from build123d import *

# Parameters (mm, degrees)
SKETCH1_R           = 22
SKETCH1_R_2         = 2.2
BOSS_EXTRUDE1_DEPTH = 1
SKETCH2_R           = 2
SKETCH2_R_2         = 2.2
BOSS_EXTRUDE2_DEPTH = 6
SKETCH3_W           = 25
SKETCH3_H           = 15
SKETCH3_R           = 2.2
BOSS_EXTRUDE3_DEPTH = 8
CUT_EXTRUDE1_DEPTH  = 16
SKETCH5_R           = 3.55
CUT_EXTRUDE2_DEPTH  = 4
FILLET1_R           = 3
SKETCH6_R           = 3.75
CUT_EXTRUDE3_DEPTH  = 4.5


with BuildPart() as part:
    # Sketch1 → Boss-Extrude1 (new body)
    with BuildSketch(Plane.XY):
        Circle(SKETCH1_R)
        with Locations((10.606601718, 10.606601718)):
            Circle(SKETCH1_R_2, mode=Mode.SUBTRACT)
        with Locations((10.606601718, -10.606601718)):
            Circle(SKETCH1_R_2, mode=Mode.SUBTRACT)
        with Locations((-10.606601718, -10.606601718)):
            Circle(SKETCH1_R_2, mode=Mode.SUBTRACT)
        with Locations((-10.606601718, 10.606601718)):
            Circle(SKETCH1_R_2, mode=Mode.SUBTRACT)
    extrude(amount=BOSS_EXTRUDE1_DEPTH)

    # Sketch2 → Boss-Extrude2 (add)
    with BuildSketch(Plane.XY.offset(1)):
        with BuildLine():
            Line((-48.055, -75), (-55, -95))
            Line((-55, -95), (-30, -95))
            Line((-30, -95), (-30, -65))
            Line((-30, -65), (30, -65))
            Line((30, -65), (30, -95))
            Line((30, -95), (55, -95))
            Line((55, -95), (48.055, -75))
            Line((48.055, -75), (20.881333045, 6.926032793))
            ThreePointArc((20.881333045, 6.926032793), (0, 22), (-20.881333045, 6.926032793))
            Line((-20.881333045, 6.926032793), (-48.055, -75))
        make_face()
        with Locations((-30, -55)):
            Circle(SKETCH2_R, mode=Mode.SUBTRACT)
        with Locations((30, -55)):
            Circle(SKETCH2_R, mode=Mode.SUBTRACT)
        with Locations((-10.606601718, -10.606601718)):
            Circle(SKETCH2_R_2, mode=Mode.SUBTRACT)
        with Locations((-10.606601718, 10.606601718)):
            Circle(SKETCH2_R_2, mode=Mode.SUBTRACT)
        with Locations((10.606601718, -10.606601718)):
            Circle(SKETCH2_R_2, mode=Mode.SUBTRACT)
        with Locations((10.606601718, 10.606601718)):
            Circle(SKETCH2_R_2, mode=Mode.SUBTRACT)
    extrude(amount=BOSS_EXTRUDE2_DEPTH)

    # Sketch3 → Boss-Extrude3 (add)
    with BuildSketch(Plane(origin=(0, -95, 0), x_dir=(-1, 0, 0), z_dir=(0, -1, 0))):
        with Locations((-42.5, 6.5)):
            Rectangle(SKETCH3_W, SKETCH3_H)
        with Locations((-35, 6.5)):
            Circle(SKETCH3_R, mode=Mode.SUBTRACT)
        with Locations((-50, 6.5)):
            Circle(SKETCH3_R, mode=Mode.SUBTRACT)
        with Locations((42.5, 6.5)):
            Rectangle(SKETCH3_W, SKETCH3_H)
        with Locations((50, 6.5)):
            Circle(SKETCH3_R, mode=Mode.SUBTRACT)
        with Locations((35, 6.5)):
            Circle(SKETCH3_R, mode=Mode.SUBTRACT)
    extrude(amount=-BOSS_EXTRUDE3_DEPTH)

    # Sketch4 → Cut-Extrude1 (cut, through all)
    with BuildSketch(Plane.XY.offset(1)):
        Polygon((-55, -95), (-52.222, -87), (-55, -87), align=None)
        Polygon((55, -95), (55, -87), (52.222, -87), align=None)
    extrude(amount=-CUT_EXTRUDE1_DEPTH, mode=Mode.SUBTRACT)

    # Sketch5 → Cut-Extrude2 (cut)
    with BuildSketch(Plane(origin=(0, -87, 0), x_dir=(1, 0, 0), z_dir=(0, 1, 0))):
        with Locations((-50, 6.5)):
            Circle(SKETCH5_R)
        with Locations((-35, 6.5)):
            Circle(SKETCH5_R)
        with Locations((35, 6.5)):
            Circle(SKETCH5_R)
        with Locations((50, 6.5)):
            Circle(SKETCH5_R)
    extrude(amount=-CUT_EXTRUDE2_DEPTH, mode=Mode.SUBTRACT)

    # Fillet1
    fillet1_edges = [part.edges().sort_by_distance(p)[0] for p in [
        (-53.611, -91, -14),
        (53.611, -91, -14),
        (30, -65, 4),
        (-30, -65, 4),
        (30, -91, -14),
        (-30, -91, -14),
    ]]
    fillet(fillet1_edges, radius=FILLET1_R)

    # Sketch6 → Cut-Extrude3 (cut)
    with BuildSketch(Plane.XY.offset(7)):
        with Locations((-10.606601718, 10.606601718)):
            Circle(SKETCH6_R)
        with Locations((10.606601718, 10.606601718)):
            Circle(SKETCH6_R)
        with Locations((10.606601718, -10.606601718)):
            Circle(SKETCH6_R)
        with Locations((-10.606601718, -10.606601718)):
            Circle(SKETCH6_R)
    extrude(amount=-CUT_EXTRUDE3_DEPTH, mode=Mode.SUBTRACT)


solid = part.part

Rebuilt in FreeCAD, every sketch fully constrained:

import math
import FreeCAD as App
import Part
import Sketcher
from FreeCAD import Vector
Q = App.Units.Quantity


def edges_at(feature, points):
    """Names of the edges that pass closest to the given points."""
    edges = feature.Shape.Edges
    near = lambda p: min(range(len(edges)), key=lambda i: edges[i].distToShape(Part.Vertex(*p))[0])
    return sorted({f"Edge{near(p) + 1}" for p in points})

doc = App.newDocument("Part")
params = doc.addObject("Spreadsheet::Sheet", "Params")
for row, (alias, value) in enumerate([
    ("sketch1_diameter", "44 mm"),
    ("sketch1_diameter2", "4.4 mm"),
    ("pad1_length", "1 mm"),
    ("sketch2_diameter", "4 mm"),
    ("sketch2_radius", "22 mm"),
    ("sketch2_diameter2", "4.4 mm"),
    ("sketch2_width", "25 mm"),
    ("sketch2_width2", "60 mm"),
    ("pad2_length", "6 mm"),
    ("sketch3_diameter", "4.4 mm"),
    ("sketch3_width", "25 mm"),
    ("sketch3_height", "15 mm"),
    ("pad3_length", "8 mm"),
    ("sketch4_height", "8 mm"),
    ("sketch5_diameter", "7.1 mm"),
    ("pocket2_length", "4 mm"),
    ("fillet_radius", "3 mm"),
    ("sketch6_diameter", "7.5 mm"),
    ("pocket3_length", "4.5 mm"),
], start=1):
    params.set(f"A{row}", alias)
    params.set(f"B{row}", "=" + value)
    params.setAlias(f"B{row}", alias)

body = doc.addObject("PartDesign::Body", "Body")

# Sketch on XY plane
sketch1 = body.newObject("Sketcher::SketchObject", "Sketch")
sketch1.AttachmentSupport = (doc.getObject("XY_Plane"), [""])
sketch1.MapMode = "FlatFace"
sketch1.addGeometry(Part.Circle(Vector(0, 0, 0), Vector(0, 0, 1), 22), False)
sketch1.addGeometry(Part.Circle(Vector(-10.6, -10.6, 0), Vector(0, 0, 1), 2.2), False)
sketch1.addGeometry(Part.Circle(Vector(10.6, -10.6, 0), Vector(0, 0, 1), 2.2), False)
sketch1.addGeometry(Part.Circle(Vector(-10.6, 10.6, 0), Vector(0, 0, 1), 2.2), False)
sketch1.addGeometry(Part.Circle(Vector(10.6, 10.6, 0), Vector(0, 0, 1), 2.2), False)
sketch1.addConstraint(Sketcher.Constraint("Coincident", 0, 3, -1, 1))
sketch1.addConstraint(Sketcher.Constraint("Equal", 1, 2))
sketch1.addConstraint(Sketcher.Constraint("Equal", 2, 3))
sketch1.addConstraint(Sketcher.Constraint("Equal", 3, 4))
sketch1.addConstraint(Sketcher.Constraint("Symmetric", 2, 3, 3, 3, -1, 1))
sketch1.addConstraint(Sketcher.Constraint("Symmetric", 1, 3, 4, 3, -1, 1))
sketch1.addConstraint(Sketcher.Constraint("Symmetric", 1, 3, 2, 3, -2))
sketch1.addConstraint(Sketcher.Constraint("Diameter", 0, Q("44 mm")))
sketch1.addConstraint(Sketcher.Constraint("Diameter", 1, Q("4.4 mm")))
sketch1.addConstraint(Sketcher.Constraint("DistanceX", 1, 3, -1, 1, Q("10.606602 mm")))
sketch1.addConstraint(Sketcher.Constraint("DistanceY", 1, 3, -1, 1, Q("10.606602 mm")))
sketch1.setExpression("Constraints[7]", "Params.sketch1_diameter")
sketch1.setExpression("Constraints[8]", "Params.sketch1_diameter2")
pad1 = body.newObject("PartDesign::Pad", "Pad")
pad1.Profile = sketch1
pad1.setExpression("Length", "Params.pad1_length")

# Sketch on XY plane
sketch2 = body.newObject("Sketcher::SketchObject", "Sketch001")
sketch2.AttachmentSupport = (doc.getObject("XY_Plane"), [""])
sketch2.MapMode = "FlatFace"
sketch2.AttachmentOffset = App.Placement(Vector(0, 0, 1), App.Rotation())
sketch2.addGeometry(Part.LineSegment(Vector(-48.1, -75, 0), Vector(-55, -95, 0)), False)
sketch2.addGeometry(Part.LineSegment(Vector(-55, -95, 0), Vector(-30, -95, 0)), False)
sketch2.addGeometry(Part.LineSegment(Vector(-30, -95, 0), Vector(-30, -65, 0)), False)
sketch2.addGeometry(Part.LineSegment(Vector(-30, -65, 0), Vector(30, -65, 0)), False)
sketch2.addGeometry(Part.LineSegment(Vector(30, -65, 0), Vector(30, -95, 0)), False)
sketch2.addGeometry(Part.LineSegment(Vector(30, -95, 0), Vector(55, -95, 0)), False)
sketch2.addGeometry(Part.LineSegment(Vector(55, -95, 0), Vector(48.1, -75, 0)), False)
sketch2.addGeometry(Part.LineSegment(Vector(48.1, -75, 0), Vector(20.9, 6.9, 0)), False)
sketch2.addGeometry(Part.ArcOfCircle(Part.Circle(Vector(0, 0, 0), Vector(0, 0, 1), 22), math.radians(18), math.radians(162)), False)
sketch2.addGeometry(Part.LineSegment(Vector(-20.9, 6.9, 0), Vector(-48.1, -75, 0)), False)
sketch2.addGeometry(Part.Circle(Vector(-30, -55, 0), Vector(0, 0, 1), 2), False)
sketch2.addGeometry(Part.Circle(Vector(30, -55, 0), Vector(0, 0, 1), 2), False)
sketch2.addGeometry(Part.Circle(Vector(-10.6, -10.6, 0), Vector(0, 0, 1), 2.2), False)
sketch2.addGeometry(Part.Circle(Vector(-10.6, 10.6, 0), Vector(0, 0, 1), 2.2), False)
sketch2.addGeometry(Part.Circle(Vector(10.6, -10.6, 0), Vector(0, 0, 1), 2.2), False)
sketch2.addGeometry(Part.Circle(Vector(10.6, 10.6, 0), Vector(0, 0, 1), 2.2), False)
sketch2.addConstraint(Sketcher.Constraint("Coincident", 0, 2, 1, 1))
sketch2.addConstraint(Sketcher.Constraint("Coincident", 1, 2, 2, 1))
sketch2.addConstraint(Sketcher.Constraint("Coincident", 2, 2, 3, 1))
sketch2.addConstraint(Sketcher.Constraint("Coincident", 3, 2, 4, 1))
sketch2.addConstraint(Sketcher.Constraint("Coincident", 4, 2, 5, 1))
sketch2.addConstraint(Sketcher.Constraint("Coincident", 5, 2, 6, 1))
sketch2.addConstraint(Sketcher.Constraint("Coincident", 6, 2, 7, 1))
sketch2.addConstraint(Sketcher.Constraint("Tangent", 7, 2, 8, 1))
sketch2.addConstraint(Sketcher.Constraint("Tangent", 8, 2, 9, 1))
sketch2.addConstraint(Sketcher.Constraint("Coincident", 9, 2, 0, 1))
sketch2.addConstraint(Sketcher.Constraint("Horizontal", 1))
sketch2.addConstraint(Sketcher.Constraint("Vertical", 2))
sketch2.addConstraint(Sketcher.Constraint("Horizontal", 3))
sketch2.addConstraint(Sketcher.Constraint("Vertical", 4))
sketch2.addConstraint(Sketcher.Constraint("Horizontal", 5))
sketch2.addConstraint(Sketcher.Constraint("Coincident", 8, 3, -1, 1))
sketch2.addConstraint(Sketcher.Constraint("Equal", 10, 11))
sketch2.addConstraint(Sketcher.Constraint("Equal", 12, 13))
sketch2.addConstraint(Sketcher.Constraint("Equal", 13, 14))
sketch2.addConstraint(Sketcher.Constraint("Equal", 14, 15))
sketch2.addConstraint(Sketcher.Constraint("Symmetric", 13, 3, 14, 3, -1, 1))
sketch2.addConstraint(Sketcher.Constraint("Symmetric", 12, 3, 15, 3, -1, 1))
sketch2.addConstraint(Sketcher.Constraint("Symmetric", 10, 3, 11, 3, -2))
sketch2.addConstraint(Sketcher.Constraint("Symmetric", 12, 3, 14, 3, -2))
sketch2.addConstraint(Sketcher.Constraint("Symmetric", 1, 2, 4, 2, -2))
sketch2.addConstraint(Sketcher.Constraint("Symmetric", 6, 2, 9, 2, -2))
sketch2.addConstraint(Sketcher.Constraint("Vertical", 10, 3, 1, 2))
sketch2.addConstraint(Sketcher.Constraint("Equal", 1, 5))
sketch2.addConstraint(Sketcher.Constraint("Diameter", 10, Q("4 mm")))
sketch2.addConstraint(Sketcher.Constraint("Radius", 8, Q("22 mm")))
sketch2.addConstraint(Sketcher.Constraint("Diameter", 12, Q("4.4 mm")))
sketch2.addConstraint(Sketcher.Constraint("DistanceX", 1, 1, 1, 2, Q("25 mm")))
sketch2.addConstraint(Sketcher.Constraint("DistanceX", 3, 1, 3, 2, Q("60 mm")))
sketch2.addConstraint(Sketcher.Constraint("DistanceY", 2, 1, 2, 2, Q("30 mm")))
sketch2.addConstraint(Sketcher.Constraint("DistanceY", 10, 3, -1, 1, Q("55 mm")))
sketch2.addConstraint(Sketcher.Constraint("DistanceY", 0, 2, -1, 1, Q("95 mm")))
sketch2.addConstraint(Sketcher.Constraint("DistanceY", 6, 2, -1, 1, Q("75 mm")))
sketch2.addConstraint(Sketcher.Constraint("DistanceX", -1, 1, 6, 2, Q("48.055 mm")))
sketch2.addConstraint(Sketcher.Constraint("DistanceX", 12, 3, -1, 1, Q("10.606602 mm")))
sketch2.addConstraint(Sketcher.Constraint("DistanceY", 12, 3, -1, 1, Q("10.606602 mm")))
sketch2.setExpression("Constraints[28]", "Params.sketch2_diameter")
sketch2.setExpression("Constraints[29]", "Params.sketch2_radius")
sketch2.setExpression("Constraints[30]", "Params.sketch2_diameter2")
sketch2.setExpression("Constraints[31]", "Params.sketch2_width")
sketch2.setExpression("Constraints[32]", "Params.sketch2_width2")
pad2 = body.newObject("PartDesign::Pad", "Pad001")
pad2.Profile = sketch2
pad2.setExpression("Length", "Params.pad2_length")

# Sketch on XZ plane
sketch3 = body.newObject("Sketcher::SketchObject", "Sketch002")
sketch3.AttachmentSupport = (doc.getObject("XZ_Plane"), [""])
sketch3.MapMode = "FlatFace"
sketch3.AttachmentOffset = App.Placement(Vector(0, 0, 95), App.Rotation())
sketch3.addGeometry(Part.LineSegment(Vector(55, -14, 0), Vector(55, 1, 0)), False)
sketch3.addGeometry(Part.LineSegment(Vector(55, 1, 0), Vector(30, 1, 0)), False)
sketch3.addGeometry(Part.LineSegment(Vector(30, 1, 0), Vector(30, -14, 0)), False)
sketch3.addGeometry(Part.LineSegment(Vector(30, -14, 0), Vector(55, -14, 0)), False)
sketch3.addGeometry(Part.Circle(Vector(50, -6.5, 0), Vector(0, 0, 1), 2.2), False)
sketch3.addGeometry(Part.Circle(Vector(35, -6.5, 0), Vector(0, 0, 1), 2.2), False)
sketch3.addGeometry(Part.LineSegment(Vector(-30, -14, 0), Vector(-30, 1, 0)), False)
sketch3.addGeometry(Part.LineSegment(Vector(-30, 1, 0), Vector(-55, 1, 0)), False)
sketch3.addGeometry(Part.LineSegment(Vector(-55, 1, 0), Vector(-55, -14, 0)), False)
sketch3.addGeometry(Part.LineSegment(Vector(-55, -14, 0), Vector(-30, -14, 0)), False)
sketch3.addGeometry(Part.Circle(Vector(-35, -6.5, 0), Vector(0, 0, 1), 2.2), False)
sketch3.addGeometry(Part.Circle(Vector(-50, -6.5, 0), Vector(0, 0, 1), 2.2), False)
sketch3.addConstraint(Sketcher.Constraint("Coincident", 0, 2, 1, 1))
sketch3.addConstraint(Sketcher.Constraint("Coincident", 1, 2, 2, 1))
sketch3.addConstraint(Sketcher.Constraint("Coincident", 2, 2, 3, 1))
sketch3.addConstraint(Sketcher.Constraint("Coincident", 3, 2, 0, 1))
sketch3.addConstraint(Sketcher.Constraint("Coincident", 6, 2, 7, 1))
sketch3.addConstraint(Sketcher.Constraint("Coincident", 7, 2, 8, 1))
sketch3.addConstraint(Sketcher.Constraint("Coincident", 8, 2, 9, 1))
sketch3.addConstraint(Sketcher.Constraint("Coincident", 9, 2, 6, 1))
sketch3.addConstraint(Sketcher.Constraint("Vertical", 0))
sketch3.addConstraint(Sketcher.Constraint("Horizontal", 1))
sketch3.addConstraint(Sketcher.Constraint("Vertical", 2))
sketch3.addConstraint(Sketcher.Constraint("Horizontal", 3))
sketch3.addConstraint(Sketcher.Constraint("Vertical", 6))
sketch3.addConstraint(Sketcher.Constraint("Horizontal", 7))
sketch3.addConstraint(Sketcher.Constraint("Vertical", 8))
sketch3.addConstraint(Sketcher.Constraint("Horizontal", 9))
sketch3.addConstraint(Sketcher.Constraint("Equal", 4, 5))
sketch3.addConstraint(Sketcher.Constraint("Equal", 5, 10))
sketch3.addConstraint(Sketcher.Constraint("Equal", 10, 11))
sketch3.addConstraint(Sketcher.Constraint("Symmetric", 5, 3, 10, 3, -2))
sketch3.addConstraint(Sketcher.Constraint("Symmetric", 4, 3, 11, 3, -2))
sketch3.addConstraint(Sketcher.Constraint("Symmetric", 1, 2, 6, 2, -2))
sketch3.addConstraint(Sketcher.Constraint("Symmetric", 3, 2, 8, 2, -2))
sketch3.addConstraint(Sketcher.Constraint("Horizontal", 4, 3, 5, 3))
sketch3.addConstraint(Sketcher.Constraint("Diameter", 4, Q("4.4 mm")))
sketch3.addConstraint(Sketcher.Constraint("DistanceX", 1, 2, 1, 1, Q("25 mm")))
sketch3.addConstraint(Sketcher.Constraint("DistanceY", 0, 1, 0, 2, Q("15 mm")))
sketch3.addConstraint(Sketcher.Constraint("DistanceX", -1, 1, 4, 3, Q("50 mm")))
sketch3.addConstraint(Sketcher.Constraint("DistanceX", -1, 1, 5, 3, Q("35 mm")))
sketch3.addConstraint(Sketcher.Constraint("DistanceX", -1, 1, 0, 2, Q("55 mm")))
sketch3.addConstraint(Sketcher.Constraint("DistanceY", -1, 1, 0, 2, Q("1 mm")))
sketch3.addConstraint(Sketcher.Constraint("DistanceY", 4, 3, -1, 1, Q("6.5 mm")))
sketch3.setExpression("Constraints[24]", "Params.sketch3_diameter")
sketch3.setExpression("Constraints[25]", "Params.sketch3_width")
sketch3.setExpression("Constraints[26]", "Params.sketch3_height")
pad3 = body.newObject("PartDesign::Pad", "Pad002")
pad3.Profile = sketch3
pad3.setExpression("Length", "Params.pad3_length")
pad3.Reversed = True

# Sketch on XY plane
sketch4 = body.newObject("Sketcher::SketchObject", "Sketch003")
sketch4.AttachmentSupport = (doc.getObject("XY_Plane"), [""])
sketch4.MapMode = "FlatFace"
sketch4.AttachmentOffset = App.Placement(Vector(0, 0, 1), App.Rotation())
sketch4.addGeometry(Part.LineSegment(Vector(-55, -95, 0), Vector(-52.2, -87, 0)), False)
sketch4.addGeometry(Part.LineSegment(Vector(-52.2, -87, 0), Vector(-55, -87, 0)), False)
sketch4.addGeometry(Part.LineSegment(Vector(-55, -87, 0), Vector(-55, -95, 0)), False)
sketch4.addGeometry(Part.LineSegment(Vector(55, -95, 0), Vector(55, -87, 0)), False)
sketch4.addGeometry(Part.LineSegment(Vector(55, -87, 0), Vector(52.2, -87, 0)), False)
sketch4.addGeometry(Part.LineSegment(Vector(52.2, -87, 0), Vector(55, -95, 0)), False)
sketch4.addConstraint(Sketcher.Constraint("Coincident", 0, 2, 1, 1))
sketch4.addConstraint(Sketcher.Constraint("Coincident", 1, 2, 2, 1))
sketch4.addConstraint(Sketcher.Constraint("Coincident", 2, 2, 0, 1))
sketch4.addConstraint(Sketcher.Constraint("Coincident", 3, 2, 4, 1))
sketch4.addConstraint(Sketcher.Constraint("Coincident", 4, 2, 5, 1))
sketch4.addConstraint(Sketcher.Constraint("Coincident", 5, 2, 3, 1))
sketch4.addConstraint(Sketcher.Constraint("Horizontal", 1))
sketch4.addConstraint(Sketcher.Constraint("Vertical", 2))
sketch4.addConstraint(Sketcher.Constraint("Vertical", 3))
sketch4.addConstraint(Sketcher.Constraint("Horizontal", 4))
sketch4.addConstraint(Sketcher.Constraint("Symmetric", 1, 2, 3, 2, -2))
sketch4.addConstraint(Sketcher.Constraint("Horizontal", 2, 2, 5, 2))
sketch4.addConstraint(Sketcher.Constraint("Equal", 1, 4))
sketch4.addConstraint(Sketcher.Constraint("DistanceY", 2, 2, 2, 1, Q("8 mm")))
sketch4.addConstraint(Sketcher.Constraint("DistanceY", 0, 2, -1, 1, Q("87 mm")))
sketch4.addConstraint(Sketcher.Constraint("DistanceX", 1, 2, -1, 1, Q("55 mm")))
sketch4.addConstraint(Sketcher.Constraint("DistanceX", 1, 2, 1, 1, Q("2.778 mm")))
sketch4.setExpression("Constraints[13]", "Params.sketch4_height")
pocket1 = body.newObject("PartDesign::Pocket", "Pocket")
pocket1.Profile = sketch4
pocket1.Type = "ThroughAll"

# Sketch on XZ plane
sketch5 = body.newObject("Sketcher::SketchObject", "Sketch004")
sketch5.AttachmentSupport = (doc.getObject("XZ_Plane"), [""])
sketch5.MapMode = "FlatFace"
sketch5.AttachmentOffset = App.Placement(Vector(0, 0, 87), App.Rotation())
sketch5.addGeometry(Part.Circle(Vector(-50, -6.5, 0), Vector(0, 0, 1), 3.5), False)
sketch5.addGeometry(Part.Circle(Vector(-35, -6.5, 0), Vector(0, 0, 1), 3.5), False)
sketch5.addGeometry(Part.Circle(Vector(35, -6.5, 0), Vector(0, 0, 1), 3.5), False)
sketch5.addGeometry(Part.Circle(Vector(50, -6.5, 0), Vector(0, 0, 1), 3.5), False)
sketch5.addConstraint(Sketcher.Constraint("Equal", 0, 1))
sketch5.addConstraint(Sketcher.Constraint("Equal", 1, 2))
sketch5.addConstraint(Sketcher.Constraint("Equal", 2, 3))
sketch5.addConstraint(Sketcher.Constraint("Symmetric", 1, 3, 2, 3, -2))
sketch5.addConstraint(Sketcher.Constraint("Symmetric", 0, 3, 3, 3, -2))
sketch5.addConstraint(Sketcher.Constraint("Horizontal", 0, 3, 1, 3))
sketch5.addConstraint(Sketcher.Constraint("Diameter", 0, Q("7.1 mm")))
sketch5.addConstraint(Sketcher.Constraint("DistanceX", 0, 3, -1, 1, Q("50 mm")))
sketch5.addConstraint(Sketcher.Constraint("DistanceX", 1, 3, -1, 1, Q("35 mm")))
sketch5.addConstraint(Sketcher.Constraint("DistanceY", 0, 3, -1, 1, Q("6.5 mm")))
sketch5.setExpression("Constraints[6]", "Params.sketch5_diameter")
pocket2 = body.newObject("PartDesign::Pocket", "Pocket001")
pocket2.Profile = sketch5
pocket2.setExpression("Length", "Params.pocket2_length")
pocket2.Reversed = True
doc.recompute()

fillet = body.newObject("PartDesign::Fillet", "Fillet")
fillet.Base = (pocket2, edges_at(pocket2, [
    (-53.611, -91, -14),
    (53.611, -91, -14),
    (30, -65, 4),
    (-30, -65, 4),
    (30, -91, -14),
    (-30, -91, -14),
]))
fillet.setExpression("Radius", "Params.fillet_radius")

# Sketch on XY plane
sketch6 = body.newObject("Sketcher::SketchObject", "Sketch005")
sketch6.AttachmentSupport = (doc.getObject("XY_Plane"), [""])
sketch6.MapMode = "FlatFace"
sketch6.AttachmentOffset = App.Placement(Vector(0, 0, 7), App.Rotation())
sketch6.addGeometry(Part.Circle(Vector(-10.6, 10.6, 0), Vector(0, 0, 1), 3.8), False)
sketch6.addGeometry(Part.Circle(Vector(10.6, 10.6, 0), Vector(0, 0, 1), 3.8), False)
sketch6.addGeometry(Part.Circle(Vector(10.6, -10.6, 0), Vector(0, 0, 1), 3.8), False)
sketch6.addGeometry(Part.Circle(Vector(-10.6, -10.6, 0), Vector(0, 0, 1), 3.8), False)
sketch6.addConstraint(Sketcher.Constraint("Equal", 0, 1))
sketch6.addConstraint(Sketcher.Constraint("Equal", 1, 2))
sketch6.addConstraint(Sketcher.Constraint("Equal", 2, 3))
sketch6.addConstraint(Sketcher.Constraint("Symmetric", 0, 3, 2, 3, -1, 1))
sketch6.addConstraint(Sketcher.Constraint("Symmetric", 1, 3, 3, 3, -1, 1))
sketch6.addConstraint(Sketcher.Constraint("Symmetric", 0, 3, 1, 3, -2))
sketch6.addConstraint(Sketcher.Constraint("Diameter", 0, Q("7.5 mm")))
sketch6.addConstraint(Sketcher.Constraint("DistanceX", 0, 3, -1, 1, Q("10.606602 mm")))
sketch6.addConstraint(Sketcher.Constraint("DistanceY", -1, 1, 0, 3, Q("10.606602 mm")))
sketch6.setExpression("Constraints[6]", "Params.sketch6_diameter")
pocket3 = body.newObject("PartDesign::Pocket", "Pocket002")
pocket3.Profile = sketch6
pocket3.setExpression("Length", "Params.pocket3_length")

doc.recompute()
